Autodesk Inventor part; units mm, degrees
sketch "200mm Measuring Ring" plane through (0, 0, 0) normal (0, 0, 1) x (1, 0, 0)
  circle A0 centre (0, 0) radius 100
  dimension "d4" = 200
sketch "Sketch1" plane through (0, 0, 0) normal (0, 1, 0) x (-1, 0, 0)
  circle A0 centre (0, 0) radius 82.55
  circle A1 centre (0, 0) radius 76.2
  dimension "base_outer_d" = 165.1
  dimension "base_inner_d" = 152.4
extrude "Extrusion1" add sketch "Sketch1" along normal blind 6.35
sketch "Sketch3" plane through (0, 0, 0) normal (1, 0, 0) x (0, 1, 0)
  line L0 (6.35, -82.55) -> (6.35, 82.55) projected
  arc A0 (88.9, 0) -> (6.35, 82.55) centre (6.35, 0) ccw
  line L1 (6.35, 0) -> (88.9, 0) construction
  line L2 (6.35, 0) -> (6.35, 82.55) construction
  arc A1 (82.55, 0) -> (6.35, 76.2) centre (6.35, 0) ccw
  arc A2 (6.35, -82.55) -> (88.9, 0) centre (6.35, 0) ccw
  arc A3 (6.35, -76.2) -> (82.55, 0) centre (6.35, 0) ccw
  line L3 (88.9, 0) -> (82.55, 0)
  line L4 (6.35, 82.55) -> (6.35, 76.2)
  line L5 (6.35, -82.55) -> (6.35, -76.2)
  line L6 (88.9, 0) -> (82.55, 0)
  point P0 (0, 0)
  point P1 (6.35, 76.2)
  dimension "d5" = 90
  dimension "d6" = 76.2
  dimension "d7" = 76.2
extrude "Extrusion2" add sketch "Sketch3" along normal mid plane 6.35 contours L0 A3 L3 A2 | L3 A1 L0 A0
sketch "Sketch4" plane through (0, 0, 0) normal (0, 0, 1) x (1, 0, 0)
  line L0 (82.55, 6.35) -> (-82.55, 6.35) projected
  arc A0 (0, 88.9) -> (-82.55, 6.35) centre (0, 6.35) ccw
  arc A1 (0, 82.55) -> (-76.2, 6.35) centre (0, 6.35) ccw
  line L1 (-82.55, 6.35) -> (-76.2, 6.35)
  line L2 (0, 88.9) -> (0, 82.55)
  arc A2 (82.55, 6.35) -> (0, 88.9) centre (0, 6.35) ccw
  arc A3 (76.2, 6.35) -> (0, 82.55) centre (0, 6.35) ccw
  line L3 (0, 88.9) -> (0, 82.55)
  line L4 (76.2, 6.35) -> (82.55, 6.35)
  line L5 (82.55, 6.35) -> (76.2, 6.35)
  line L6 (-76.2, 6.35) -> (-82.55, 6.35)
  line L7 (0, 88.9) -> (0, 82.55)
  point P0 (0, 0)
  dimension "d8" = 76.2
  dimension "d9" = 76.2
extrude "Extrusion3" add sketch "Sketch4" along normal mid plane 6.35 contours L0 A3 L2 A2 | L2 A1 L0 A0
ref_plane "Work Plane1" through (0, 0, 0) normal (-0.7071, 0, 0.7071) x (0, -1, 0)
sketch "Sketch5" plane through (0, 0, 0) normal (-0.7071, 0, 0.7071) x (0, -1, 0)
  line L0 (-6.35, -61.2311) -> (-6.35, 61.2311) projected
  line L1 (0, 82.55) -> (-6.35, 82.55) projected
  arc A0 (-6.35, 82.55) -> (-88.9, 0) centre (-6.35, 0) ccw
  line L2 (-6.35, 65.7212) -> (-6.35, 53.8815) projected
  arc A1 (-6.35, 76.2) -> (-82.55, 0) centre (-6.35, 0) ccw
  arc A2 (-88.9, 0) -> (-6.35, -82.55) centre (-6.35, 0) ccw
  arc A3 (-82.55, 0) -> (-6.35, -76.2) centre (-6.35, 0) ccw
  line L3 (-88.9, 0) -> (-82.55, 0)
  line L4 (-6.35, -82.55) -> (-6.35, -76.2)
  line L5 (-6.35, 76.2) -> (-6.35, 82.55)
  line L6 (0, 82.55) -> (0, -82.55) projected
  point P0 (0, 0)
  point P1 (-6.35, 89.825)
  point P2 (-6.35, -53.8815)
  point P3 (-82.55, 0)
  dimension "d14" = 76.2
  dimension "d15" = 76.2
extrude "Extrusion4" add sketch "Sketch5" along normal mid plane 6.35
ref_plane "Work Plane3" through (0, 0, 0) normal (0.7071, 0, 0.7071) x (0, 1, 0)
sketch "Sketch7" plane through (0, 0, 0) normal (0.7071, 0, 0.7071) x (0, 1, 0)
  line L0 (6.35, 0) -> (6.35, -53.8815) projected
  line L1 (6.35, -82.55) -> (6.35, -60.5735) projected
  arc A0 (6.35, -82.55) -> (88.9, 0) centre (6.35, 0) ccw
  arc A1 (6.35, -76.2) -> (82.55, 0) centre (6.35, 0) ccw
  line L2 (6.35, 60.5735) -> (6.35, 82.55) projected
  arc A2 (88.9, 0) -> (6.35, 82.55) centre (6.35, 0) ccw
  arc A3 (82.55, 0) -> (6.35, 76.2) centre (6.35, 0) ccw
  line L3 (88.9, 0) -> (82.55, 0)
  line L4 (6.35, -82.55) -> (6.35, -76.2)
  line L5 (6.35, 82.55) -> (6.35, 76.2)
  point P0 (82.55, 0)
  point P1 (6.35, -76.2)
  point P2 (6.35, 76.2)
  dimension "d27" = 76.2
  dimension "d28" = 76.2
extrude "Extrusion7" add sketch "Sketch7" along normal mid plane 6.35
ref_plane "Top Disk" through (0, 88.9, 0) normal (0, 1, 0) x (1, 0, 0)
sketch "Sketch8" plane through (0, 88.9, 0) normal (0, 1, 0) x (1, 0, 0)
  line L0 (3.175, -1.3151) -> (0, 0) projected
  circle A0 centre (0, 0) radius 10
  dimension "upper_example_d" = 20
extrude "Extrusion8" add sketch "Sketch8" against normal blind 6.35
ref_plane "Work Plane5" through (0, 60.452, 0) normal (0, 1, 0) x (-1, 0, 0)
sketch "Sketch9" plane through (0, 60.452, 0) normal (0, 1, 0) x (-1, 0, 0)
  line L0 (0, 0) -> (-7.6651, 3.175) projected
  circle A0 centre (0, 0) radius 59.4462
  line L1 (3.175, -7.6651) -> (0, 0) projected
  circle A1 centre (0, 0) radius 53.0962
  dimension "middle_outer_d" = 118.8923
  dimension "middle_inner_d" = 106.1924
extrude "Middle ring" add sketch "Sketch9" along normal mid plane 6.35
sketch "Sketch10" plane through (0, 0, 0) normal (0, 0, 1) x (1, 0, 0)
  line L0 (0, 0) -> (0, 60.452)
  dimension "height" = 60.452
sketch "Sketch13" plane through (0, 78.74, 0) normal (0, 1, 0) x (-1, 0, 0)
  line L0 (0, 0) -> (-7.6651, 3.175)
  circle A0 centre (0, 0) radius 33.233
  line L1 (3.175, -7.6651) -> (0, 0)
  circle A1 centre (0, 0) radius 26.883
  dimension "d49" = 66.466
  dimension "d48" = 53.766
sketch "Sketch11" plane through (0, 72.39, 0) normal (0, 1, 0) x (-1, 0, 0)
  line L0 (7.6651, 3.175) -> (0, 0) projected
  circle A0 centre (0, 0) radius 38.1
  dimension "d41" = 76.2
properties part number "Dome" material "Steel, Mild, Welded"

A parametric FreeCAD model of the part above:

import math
import FreeCAD as App
import Part
import Sketcher
Q = App.Units.Quantity

doc = App.newDocument("Part")
body = doc.addObject("PartDesign::Body", "Body")

sketch1 = doc.addObject("Sketcher::SketchObject", "Sketch")
body.addObject(sketch1)
sketch1.AttachmentSupport = (doc.XZ_Plane, [""])
sketch1.MapMode = "FlatFace"
sketch1.addGeometry(Part.Circle(App.Vector(0, 0, 0), App.Vector(0, 0, 1), 83), False)
sketch1.addGeometry(Part.Circle(App.Vector(0, 0, 0), App.Vector(0, 0, 1), 76), False)
sketch1.addConstraint(Sketcher.Constraint("Coincident", 0, 3, -1, 1))
sketch1.addConstraint(Sketcher.Constraint("Coincident", 1, 3, -1, 1))
sketch1.addConstraint(Sketcher.Constraint("Diameter", 1, Q("6 in")))
sketch1.addConstraint(Sketcher.Constraint("Diameter", 0, Q("6.5 in")))
pad1 = doc.addObject("PartDesign::Pad", "Pad")
body.addObject(pad1)
pad1.Profile = sketch1
pad1.Length = Q("0.25 in")
pad1.Reversed = True

sketch2 = doc.addObject("Sketcher::SketchObject", "Sketch001")
body.addObject(sketch2)
sketch2.AttachmentSupport = (doc.YZ_Plane, [""])
sketch2.MapMode = "FlatFace"
sketch2.addGeometry(Part.LineSegment(App.Vector(6, -76, 0), App.Vector(6, -83, 0)), False)
sketch2.addGeometry(Part.ArcOfCircle(Part.Circle(App.Vector(6, 0, 0), App.Vector(0, 0, 1), 83), math.radians(-90), math.radians(90)), False)
sketch2.addGeometry(Part.LineSegment(App.Vector(6, 83, 0), App.Vector(6, 76, 0)), False)
sketch2.addGeometry(Part.ArcOfCircle(Part.Circle(App.Vector(6, 0, 0), App.Vector(0, 0, 1), 76), math.radians(-90), math.radians(90)), False)
sketch2.addConstraint(Sketcher.Constraint("Coincident", 0, 2, 1, 1))
sketch2.addConstraint(Sketcher.Constraint("Coincident", 1, 2, 2, 1))
sketch2.addConstraint(Sketcher.Constraint("Coincident", 2, 2, 3, 2))
sketch2.addConstraint(Sketcher.Constraint("Coincident", 3, 1, 0, 1))
sketch2.addConstraint(Sketcher.Constraint("Vertical", 0))
sketch2.addConstraint(Sketcher.Constraint("Vertical", 2))
sketch2.addConstraint(Sketcher.Constraint("Coincident", 3, 3, 1, 3))
sketch2.addConstraint(Sketcher.Constraint("Symmetric", 0, 2, 1, 2, -1))
sketch2.addConstraint(Sketcher.Constraint("Vertical", 3, 3, 0, 2))
sketch2.addConstraint(Sketcher.Constraint("Radius", 3, Q("3 in")))
sketch2.addConstraint(Sketcher.Constraint("Radius", 1, Q("3.25 in")))
sketch2.addConstraint(Sketcher.Constraint("DistanceX", -1, 1, 1, 3, Q("0.25 in")))
pad2 = doc.addObject("PartDesign::Pad", "Pad001")
body.addObject(pad2)
pad2.Profile = sketch2
pad2.Length = Q("0.25 in")
pad2.Midplane = True

sketch3 = doc.addObject("Sketcher::SketchObject", "Sketch002")
body.addObject(sketch3)
sketch3.AttachmentSupport = (doc.XY_Plane, [""])
sketch3.MapMode = "FlatFace"
sketch3.addGeometry(Part.LineSegment(App.Vector(76, 6, 0), App.Vector(83, 6, 0)), False)
sketch3.addGeometry(Part.ArcOfCircle(Part.Circle(App.Vector(0, 6, 0), App.Vector(0, 0, 1), 83), math.radians(0), math.radians(180)), False)
sketch3.addGeometry(Part.LineSegment(App.Vector(-83, 6, 0), App.Vector(-76, 6, 0)), False)
sketch3.addGeometry(Part.ArcOfCircle(Part.Circle(App.Vector(0, 6, 0), App.Vector(0, 0, 1), 76), math.radians(0), math.radians(180)), False)
sketch3.addConstraint(Sketcher.Constraint("Coincident", 0, 2, 1, 1))
sketch3.addConstraint(Sketcher.Constraint("Coincident", 1, 2, 2, 1))
sketch3.addConstraint(Sketcher.Constraint("Coincident", 2, 2, 3, 2))
sketch3.addConstraint(Sketcher.Constraint("Coincident", 3, 1, 0, 1))
sketch3.addConstraint(Sketcher.Constraint("Horizontal", 0))
sketch3.addConstraint(Sketcher.Constraint("Horizontal", 2))
sketch3.addConstraint(Sketcher.Constraint("Coincident", 3, 3, 1, 3))
sketch3.addConstraint(Sketcher.Constraint("Symmetric", 0, 2, 1, 2, -2))
sketch3.addConstraint(Sketcher.Constraint("Horizontal", 3, 3, 0, 2))
sketch3.addConstraint(Sketcher.Constraint("Radius", 3, Q("3 in")))
sketch3.addConstraint(Sketcher.Constraint("Radius", 1, Q("3.25 in")))
sketch3.addConstraint(Sketcher.Constraint("DistanceY", -1, 1, 1, 3, Q("0.25 in")))
pad3 = doc.addObject("PartDesign::Pad", "Pad002")
body.addObject(pad3)
pad3.Profile = sketch3
pad3.Length = Q("0.25 in")
pad3.Midplane = True

sketch4 = doc.addObject("Sketcher::SketchObject", "Sketch003")
body.addObject(sketch4)
sketch4.Placement = App.Placement(App.Vector(0, 0, 0), App.Rotation(App.Vector(0, -1, 0), App.Vector(0.707106781, 0, 0.707106781), App.Vector(-0.707106781, 0, 0.707106781), "ZXY"))
sketch4.addGeometry(Part.LineSegment(App.Vector(-6, 76, 0), App.Vector(-6, 83, 0)), False)
sketch4.addGeometry(Part.ArcOfCircle(Part.Circle(App.Vector(-6, 0, 0), App.Vector(0, 0, 1), 83), math.radians(90), math.radians(270)), False)
sketch4.addGeometry(Part.LineSegment(App.Vector(-6, -83, 0), App.Vector(-6, -76, 0)), False)
sketch4.addGeometry(Part.ArcOfCircle(Part.Circle(App.Vector(-6, 0, 0), App.Vector(0, 0, 1), 76), math.radians(90), math.radians(270)), False)
sketch4.addConstraint(Sketcher.Constraint("Coincident", 0, 2, 1, 1))
sketch4.addConstraint(Sketcher.Constraint("Coincident", 1, 2, 2, 1))
sketch4.addConstraint(Sketcher.Constraint("Coincident", 2, 2, 3, 2))
sketch4.addConstraint(Sketcher.Constraint("Coincident", 3, 1, 0, 1))
sketch4.addConstraint(Sketcher.Constraint("Vertical", 0))
sketch4.addConstraint(Sketcher.Constraint("Vertical", 2))
sketch4.addConstraint(Sketcher.Constraint("Coincident", 3, 3, 1, 3))
sketch4.addConstraint(Sketcher.Constraint("Symmetric", 0, 2, 1, 2, -1))
sketch4.addConstraint(Sketcher.Constraint("Vertical", 3, 3, 0, 2))
sketch4.addConstraint(Sketcher.Constraint("Radius", 3, Q("3 in")))
sketch4.addConstraint(Sketcher.Constraint("Radius", 1, Q("3.25 in")))
sketch4.addConstraint(Sketcher.Constraint("DistanceX", 1, 3, -1, 1, Q("0.25 in")))
pad4 = doc.addObject("PartDesign::Pad", "Pad003")
body.addObject(pad4)
pad4.Profile = sketch4
pad4.Length = Q("0.25 in")
pad4.Midplane = True

sketch5 = doc.addObject("Sketcher::SketchObject", "Sketch004")
body.addObject(sketch5)
sketch5.Placement = App.Placement(App.Vector(0, 0, 0), App.Rotation(App.Vector(0, 1, 0), App.Vector(-0.707106781, 0, 0.707106781), App.Vector(0.707106781, 0, 0.707106781), "ZXY"))
sketch5.addGeometry(Part.LineSegment(App.Vector(6, -76, 0), App.Vector(6, -83, 0)), False)
sketch5.addGeometry(Part.ArcOfCircle(Part.Circle(App.Vector(6, 0, 0), App.Vector(0, 0, 1), 83), math.radians(-90), math.radians(90)), False)
sketch5.addGeometry(Part.LineSegment(App.Vector(6, 83, 0), App.Vector(6, 76, 0)), False)
sketch5.addGeometry(Part.ArcOfCircle(Part.Circle(App.Vector(6, 0, 0), App.Vector(0, 0, 1), 76), math.radians(-90), math.radians(90)), False)
sketch5.addConstraint(Sketcher.Constraint("Coincident", 0, 2, 1, 1))
sketch5.addConstraint(Sketcher.Constraint("Coincident", 1, 2, 2, 1))
sketch5.addConstraint(Sketcher.Constraint("Coincident", 2, 2, 3, 2))
sketch5.addConstraint(Sketcher.Constraint("Coincident", 3, 1, 0, 1))
sketch5.addConstraint(Sketcher.Constraint("Vertical", 0))
sketch5.addConstraint(Sketcher.Constraint("Vertical", 2))
sketch5.addConstraint(Sketcher.Constraint("Coincident", 3, 3, 1, 3))
sketch5.addConstraint(Sketcher.Constraint("Symmetric", 0, 2, 1, 2, -1))
sketch5.addConstraint(Sketcher.Constraint("Vertical", 3, 3, 0, 2))
sketch5.addConstraint(Sketcher.Constraint("Radius", 3, Q("3 in")))
sketch5.addConstraint(Sketcher.Constraint("Radius", 1, Q("3.25 in")))
sketch5.addConstraint(Sketcher.Constraint("DistanceX", -1, 1, 1, 3, Q("0.25 in")))
pad5 = doc.addObject("PartDesign::Pad", "Pad004")
body.addObject(pad5)
pad5.Profile = sketch5
pad5.Length = Q("0.25 in")
pad5.Midplane = True

sketch6 = doc.addObject("Sketcher::SketchObject", "Sketch005")
body.addObject(sketch6)
sketch6.AttachmentSupport = (doc.XZ_Plane, [""])
sketch6.MapMode = "FlatFace"
sketch6.AttachmentOffset = App.Placement(App.Vector(0, 0, -3.5 * 25.4), App.Rotation())
sketch6.addGeometry(Part.Circle(App.Vector(0, 0, 0), App.Vector(0, 0, 1), 10), False)
sketch6.addConstraint(Sketcher.Constraint("Coincident", 0, 3, -1, 1))
sketch6.addConstraint(Sketcher.Constraint("Diameter", 0, Q("0.7874 in")))
pad6 = doc.addObject("PartDesign::Pad", "Pad005")
body.addObject(pad6)
pad6.Profile = sketch6
pad6.Length = Q("0.25 in")

sketch7 = doc.addObject("Sketcher::SketchObject", "Sketch006")
body.addObject(sketch7)
sketch7.AttachmentSupport = (doc.XZ_Plane, [""])
sketch7.MapMode = "FlatFace"
sketch7.AttachmentOffset = App.Placement(App.Vector(0, 0, -2.38 * 25.4), App.Rotation())
sketch7.addGeometry(Part.Circle(App.Vector(0, 0, 0), App.Vector(0, 0, 1), 59), False)
sketch7.addGeometry(Part.Circle(App.Vector(0, 0, 0), App.Vector(0, 0, 1), 53), False)
sketch7.addConstraint(Sketcher.Constraint("Coincident", 0, 3, -1, 1))
sketch7.addConstraint(Sketcher.Constraint("Coincident", 1, 3, -1, 1))
sketch7.addConstraint(Sketcher.Constraint("Diameter", 0, Q("4.6808 in")))
sketch7.addConstraint(Sketcher.Constraint("Diameter", 1, Q("4.1808 in")))
pad7 = doc.addObject("PartDesign::Pad", "Pad006")
body.addObject(pad7)
pad7.Profile = sketch7
pad7.Length = Q("0.25 in")
pad7.Midplane = True

doc.recompute()
